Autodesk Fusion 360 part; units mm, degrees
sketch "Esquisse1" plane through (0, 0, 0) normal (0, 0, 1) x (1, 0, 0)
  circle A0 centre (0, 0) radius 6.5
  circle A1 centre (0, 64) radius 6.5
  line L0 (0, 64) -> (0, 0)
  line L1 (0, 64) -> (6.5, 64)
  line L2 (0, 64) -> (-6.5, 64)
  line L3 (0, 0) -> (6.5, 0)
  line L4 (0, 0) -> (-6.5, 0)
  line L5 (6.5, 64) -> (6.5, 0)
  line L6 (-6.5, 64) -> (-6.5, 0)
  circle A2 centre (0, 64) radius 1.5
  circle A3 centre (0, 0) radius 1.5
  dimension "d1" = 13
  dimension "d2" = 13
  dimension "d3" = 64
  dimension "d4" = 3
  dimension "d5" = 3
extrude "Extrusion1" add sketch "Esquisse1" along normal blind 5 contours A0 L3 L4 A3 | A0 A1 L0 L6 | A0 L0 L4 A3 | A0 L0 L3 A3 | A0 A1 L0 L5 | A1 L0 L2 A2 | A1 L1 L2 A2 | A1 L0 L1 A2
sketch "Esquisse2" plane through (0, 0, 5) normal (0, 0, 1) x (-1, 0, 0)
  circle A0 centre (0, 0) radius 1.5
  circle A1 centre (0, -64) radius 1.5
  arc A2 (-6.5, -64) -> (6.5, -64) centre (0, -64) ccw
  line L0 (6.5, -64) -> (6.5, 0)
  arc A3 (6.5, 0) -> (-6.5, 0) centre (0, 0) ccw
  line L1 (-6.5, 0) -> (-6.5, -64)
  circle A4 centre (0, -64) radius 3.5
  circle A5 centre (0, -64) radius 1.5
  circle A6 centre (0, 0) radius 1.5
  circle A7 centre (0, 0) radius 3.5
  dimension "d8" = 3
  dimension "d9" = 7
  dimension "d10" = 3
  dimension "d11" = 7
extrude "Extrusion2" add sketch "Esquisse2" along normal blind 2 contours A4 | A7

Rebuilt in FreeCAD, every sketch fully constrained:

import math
import FreeCAD as App
import Part
import Sketcher

V = App.Vector
Q = App.Units.Quantity

doc = App.newDocument("Part")
body = doc.addObject("PartDesign::Body", "Body")

# Sketch on XY plane
sketch1 = body.newObject("Sketcher::SketchObject", "Sketch")
sketch1.AttachmentSupport = (doc.getObject("XY_Plane"), [""])
sketch1.MapMode = "FlatFace"
sketch1.addGeometry([
    Part.ArcOfCircle(Part.Circle(V(0, 0, 0), V(0, 0, 1), 6.5), math.radians(180), math.radians(360)),  # 0
    Part.LineSegment(V(6.5, 0, 0), V(6.5, 64, 0)),  # 1
    Part.ArcOfCircle(Part.Circle(V(0, 64, 0), V(0, 0, 1), 6.5), math.radians(0), math.radians(180)),  # 2
    Part.LineSegment(V(-6.5, 64, 0), V(-6.5, 0, 0)),  # 3
    Part.Circle(V(0, 0, 0), V(0, 0, 1), 1.5),  # 4
    Part.Circle(V(0, 64, 0), V(0, 0, 1), 1.5),  # 5
], False)
sketch1.addConstraint([
    Sketcher.Constraint("Tangent", 0, 2, 1, 1),
    Sketcher.Constraint("Tangent", 1, 2, 2, 1),
    Sketcher.Constraint("Tangent", 2, 2, 3, 1),
    Sketcher.Constraint("Tangent", 3, 2, 0, 1),
    Sketcher.Constraint("Vertical", 1),
    Sketcher.Constraint("Vertical", 3),
    Sketcher.Constraint("Coincident", 0, 3, -1, 1),
    Sketcher.Constraint("Coincident", 4, 3, -1, 1),
    Sketcher.Constraint("Coincident", 5, 3, 2, 3),
    Sketcher.Constraint("Equal", 4, 5),
    Sketcher.Constraint("Diameter", 4, Q("3 mm")),
    Sketcher.Constraint("Radius", 0, Q("6.5 mm")),
    Sketcher.Constraint("DistanceY", 1, 1, 1, 2, Q("64 mm")),
])
pad1 = body.newObject("PartDesign::Pad", "Pad")
pad1.Profile = sketch1
pad1.Length = 5

# Sketch on XY plane
sketch2 = body.newObject("Sketcher::SketchObject", "Sketch001")
sketch2.AttachmentSupport = (doc.getObject("XY_Plane"), [""])
sketch2.MapMode = "FlatFace"
sketch2.AttachmentOffset = App.Placement(V(0, 0, 5), App.Rotation())
sketch2.addGeometry([
    Part.Circle(V(0, 64, 0), V(0, 0, 1), 3.5),
    Part.Circle(V(0, 64, 0), V(0, 0, 1), 1.5),
    Part.Circle(V(0, 0, 0), V(0, 0, 1), 3.5),
    Part.Circle(V(0, 0, 0), V(0, 0, 1), 1.5),
], False)
sketch2.addConstraint([
    Sketcher.Constraint("Coincident", 2, 3, -1, 1),
    Sketcher.Constraint("Coincident", 3, 3, -1, 1),
    Sketcher.Constraint("Coincident", 1, 3, 0, 3),
    Sketcher.Constraint("Equal", 0, 2),
    Sketcher.Constraint("Equal", 1, 3),
    Sketcher.Constraint("PointOnObject", 0, 3, -2),
    Sketcher.Constraint("Diameter", 0, Q("7 mm")),
    Sketcher.Constraint("Diameter", 1, Q("3 mm")),
    Sketcher.Constraint("DistanceY", -1, 1, 0, 3, Q("64 mm")),
])
pad2 = body.newObject("PartDesign::Pad", "Pad001")
pad2.Profile = sketch2
pad2.Length = 2

doc.recompute()
